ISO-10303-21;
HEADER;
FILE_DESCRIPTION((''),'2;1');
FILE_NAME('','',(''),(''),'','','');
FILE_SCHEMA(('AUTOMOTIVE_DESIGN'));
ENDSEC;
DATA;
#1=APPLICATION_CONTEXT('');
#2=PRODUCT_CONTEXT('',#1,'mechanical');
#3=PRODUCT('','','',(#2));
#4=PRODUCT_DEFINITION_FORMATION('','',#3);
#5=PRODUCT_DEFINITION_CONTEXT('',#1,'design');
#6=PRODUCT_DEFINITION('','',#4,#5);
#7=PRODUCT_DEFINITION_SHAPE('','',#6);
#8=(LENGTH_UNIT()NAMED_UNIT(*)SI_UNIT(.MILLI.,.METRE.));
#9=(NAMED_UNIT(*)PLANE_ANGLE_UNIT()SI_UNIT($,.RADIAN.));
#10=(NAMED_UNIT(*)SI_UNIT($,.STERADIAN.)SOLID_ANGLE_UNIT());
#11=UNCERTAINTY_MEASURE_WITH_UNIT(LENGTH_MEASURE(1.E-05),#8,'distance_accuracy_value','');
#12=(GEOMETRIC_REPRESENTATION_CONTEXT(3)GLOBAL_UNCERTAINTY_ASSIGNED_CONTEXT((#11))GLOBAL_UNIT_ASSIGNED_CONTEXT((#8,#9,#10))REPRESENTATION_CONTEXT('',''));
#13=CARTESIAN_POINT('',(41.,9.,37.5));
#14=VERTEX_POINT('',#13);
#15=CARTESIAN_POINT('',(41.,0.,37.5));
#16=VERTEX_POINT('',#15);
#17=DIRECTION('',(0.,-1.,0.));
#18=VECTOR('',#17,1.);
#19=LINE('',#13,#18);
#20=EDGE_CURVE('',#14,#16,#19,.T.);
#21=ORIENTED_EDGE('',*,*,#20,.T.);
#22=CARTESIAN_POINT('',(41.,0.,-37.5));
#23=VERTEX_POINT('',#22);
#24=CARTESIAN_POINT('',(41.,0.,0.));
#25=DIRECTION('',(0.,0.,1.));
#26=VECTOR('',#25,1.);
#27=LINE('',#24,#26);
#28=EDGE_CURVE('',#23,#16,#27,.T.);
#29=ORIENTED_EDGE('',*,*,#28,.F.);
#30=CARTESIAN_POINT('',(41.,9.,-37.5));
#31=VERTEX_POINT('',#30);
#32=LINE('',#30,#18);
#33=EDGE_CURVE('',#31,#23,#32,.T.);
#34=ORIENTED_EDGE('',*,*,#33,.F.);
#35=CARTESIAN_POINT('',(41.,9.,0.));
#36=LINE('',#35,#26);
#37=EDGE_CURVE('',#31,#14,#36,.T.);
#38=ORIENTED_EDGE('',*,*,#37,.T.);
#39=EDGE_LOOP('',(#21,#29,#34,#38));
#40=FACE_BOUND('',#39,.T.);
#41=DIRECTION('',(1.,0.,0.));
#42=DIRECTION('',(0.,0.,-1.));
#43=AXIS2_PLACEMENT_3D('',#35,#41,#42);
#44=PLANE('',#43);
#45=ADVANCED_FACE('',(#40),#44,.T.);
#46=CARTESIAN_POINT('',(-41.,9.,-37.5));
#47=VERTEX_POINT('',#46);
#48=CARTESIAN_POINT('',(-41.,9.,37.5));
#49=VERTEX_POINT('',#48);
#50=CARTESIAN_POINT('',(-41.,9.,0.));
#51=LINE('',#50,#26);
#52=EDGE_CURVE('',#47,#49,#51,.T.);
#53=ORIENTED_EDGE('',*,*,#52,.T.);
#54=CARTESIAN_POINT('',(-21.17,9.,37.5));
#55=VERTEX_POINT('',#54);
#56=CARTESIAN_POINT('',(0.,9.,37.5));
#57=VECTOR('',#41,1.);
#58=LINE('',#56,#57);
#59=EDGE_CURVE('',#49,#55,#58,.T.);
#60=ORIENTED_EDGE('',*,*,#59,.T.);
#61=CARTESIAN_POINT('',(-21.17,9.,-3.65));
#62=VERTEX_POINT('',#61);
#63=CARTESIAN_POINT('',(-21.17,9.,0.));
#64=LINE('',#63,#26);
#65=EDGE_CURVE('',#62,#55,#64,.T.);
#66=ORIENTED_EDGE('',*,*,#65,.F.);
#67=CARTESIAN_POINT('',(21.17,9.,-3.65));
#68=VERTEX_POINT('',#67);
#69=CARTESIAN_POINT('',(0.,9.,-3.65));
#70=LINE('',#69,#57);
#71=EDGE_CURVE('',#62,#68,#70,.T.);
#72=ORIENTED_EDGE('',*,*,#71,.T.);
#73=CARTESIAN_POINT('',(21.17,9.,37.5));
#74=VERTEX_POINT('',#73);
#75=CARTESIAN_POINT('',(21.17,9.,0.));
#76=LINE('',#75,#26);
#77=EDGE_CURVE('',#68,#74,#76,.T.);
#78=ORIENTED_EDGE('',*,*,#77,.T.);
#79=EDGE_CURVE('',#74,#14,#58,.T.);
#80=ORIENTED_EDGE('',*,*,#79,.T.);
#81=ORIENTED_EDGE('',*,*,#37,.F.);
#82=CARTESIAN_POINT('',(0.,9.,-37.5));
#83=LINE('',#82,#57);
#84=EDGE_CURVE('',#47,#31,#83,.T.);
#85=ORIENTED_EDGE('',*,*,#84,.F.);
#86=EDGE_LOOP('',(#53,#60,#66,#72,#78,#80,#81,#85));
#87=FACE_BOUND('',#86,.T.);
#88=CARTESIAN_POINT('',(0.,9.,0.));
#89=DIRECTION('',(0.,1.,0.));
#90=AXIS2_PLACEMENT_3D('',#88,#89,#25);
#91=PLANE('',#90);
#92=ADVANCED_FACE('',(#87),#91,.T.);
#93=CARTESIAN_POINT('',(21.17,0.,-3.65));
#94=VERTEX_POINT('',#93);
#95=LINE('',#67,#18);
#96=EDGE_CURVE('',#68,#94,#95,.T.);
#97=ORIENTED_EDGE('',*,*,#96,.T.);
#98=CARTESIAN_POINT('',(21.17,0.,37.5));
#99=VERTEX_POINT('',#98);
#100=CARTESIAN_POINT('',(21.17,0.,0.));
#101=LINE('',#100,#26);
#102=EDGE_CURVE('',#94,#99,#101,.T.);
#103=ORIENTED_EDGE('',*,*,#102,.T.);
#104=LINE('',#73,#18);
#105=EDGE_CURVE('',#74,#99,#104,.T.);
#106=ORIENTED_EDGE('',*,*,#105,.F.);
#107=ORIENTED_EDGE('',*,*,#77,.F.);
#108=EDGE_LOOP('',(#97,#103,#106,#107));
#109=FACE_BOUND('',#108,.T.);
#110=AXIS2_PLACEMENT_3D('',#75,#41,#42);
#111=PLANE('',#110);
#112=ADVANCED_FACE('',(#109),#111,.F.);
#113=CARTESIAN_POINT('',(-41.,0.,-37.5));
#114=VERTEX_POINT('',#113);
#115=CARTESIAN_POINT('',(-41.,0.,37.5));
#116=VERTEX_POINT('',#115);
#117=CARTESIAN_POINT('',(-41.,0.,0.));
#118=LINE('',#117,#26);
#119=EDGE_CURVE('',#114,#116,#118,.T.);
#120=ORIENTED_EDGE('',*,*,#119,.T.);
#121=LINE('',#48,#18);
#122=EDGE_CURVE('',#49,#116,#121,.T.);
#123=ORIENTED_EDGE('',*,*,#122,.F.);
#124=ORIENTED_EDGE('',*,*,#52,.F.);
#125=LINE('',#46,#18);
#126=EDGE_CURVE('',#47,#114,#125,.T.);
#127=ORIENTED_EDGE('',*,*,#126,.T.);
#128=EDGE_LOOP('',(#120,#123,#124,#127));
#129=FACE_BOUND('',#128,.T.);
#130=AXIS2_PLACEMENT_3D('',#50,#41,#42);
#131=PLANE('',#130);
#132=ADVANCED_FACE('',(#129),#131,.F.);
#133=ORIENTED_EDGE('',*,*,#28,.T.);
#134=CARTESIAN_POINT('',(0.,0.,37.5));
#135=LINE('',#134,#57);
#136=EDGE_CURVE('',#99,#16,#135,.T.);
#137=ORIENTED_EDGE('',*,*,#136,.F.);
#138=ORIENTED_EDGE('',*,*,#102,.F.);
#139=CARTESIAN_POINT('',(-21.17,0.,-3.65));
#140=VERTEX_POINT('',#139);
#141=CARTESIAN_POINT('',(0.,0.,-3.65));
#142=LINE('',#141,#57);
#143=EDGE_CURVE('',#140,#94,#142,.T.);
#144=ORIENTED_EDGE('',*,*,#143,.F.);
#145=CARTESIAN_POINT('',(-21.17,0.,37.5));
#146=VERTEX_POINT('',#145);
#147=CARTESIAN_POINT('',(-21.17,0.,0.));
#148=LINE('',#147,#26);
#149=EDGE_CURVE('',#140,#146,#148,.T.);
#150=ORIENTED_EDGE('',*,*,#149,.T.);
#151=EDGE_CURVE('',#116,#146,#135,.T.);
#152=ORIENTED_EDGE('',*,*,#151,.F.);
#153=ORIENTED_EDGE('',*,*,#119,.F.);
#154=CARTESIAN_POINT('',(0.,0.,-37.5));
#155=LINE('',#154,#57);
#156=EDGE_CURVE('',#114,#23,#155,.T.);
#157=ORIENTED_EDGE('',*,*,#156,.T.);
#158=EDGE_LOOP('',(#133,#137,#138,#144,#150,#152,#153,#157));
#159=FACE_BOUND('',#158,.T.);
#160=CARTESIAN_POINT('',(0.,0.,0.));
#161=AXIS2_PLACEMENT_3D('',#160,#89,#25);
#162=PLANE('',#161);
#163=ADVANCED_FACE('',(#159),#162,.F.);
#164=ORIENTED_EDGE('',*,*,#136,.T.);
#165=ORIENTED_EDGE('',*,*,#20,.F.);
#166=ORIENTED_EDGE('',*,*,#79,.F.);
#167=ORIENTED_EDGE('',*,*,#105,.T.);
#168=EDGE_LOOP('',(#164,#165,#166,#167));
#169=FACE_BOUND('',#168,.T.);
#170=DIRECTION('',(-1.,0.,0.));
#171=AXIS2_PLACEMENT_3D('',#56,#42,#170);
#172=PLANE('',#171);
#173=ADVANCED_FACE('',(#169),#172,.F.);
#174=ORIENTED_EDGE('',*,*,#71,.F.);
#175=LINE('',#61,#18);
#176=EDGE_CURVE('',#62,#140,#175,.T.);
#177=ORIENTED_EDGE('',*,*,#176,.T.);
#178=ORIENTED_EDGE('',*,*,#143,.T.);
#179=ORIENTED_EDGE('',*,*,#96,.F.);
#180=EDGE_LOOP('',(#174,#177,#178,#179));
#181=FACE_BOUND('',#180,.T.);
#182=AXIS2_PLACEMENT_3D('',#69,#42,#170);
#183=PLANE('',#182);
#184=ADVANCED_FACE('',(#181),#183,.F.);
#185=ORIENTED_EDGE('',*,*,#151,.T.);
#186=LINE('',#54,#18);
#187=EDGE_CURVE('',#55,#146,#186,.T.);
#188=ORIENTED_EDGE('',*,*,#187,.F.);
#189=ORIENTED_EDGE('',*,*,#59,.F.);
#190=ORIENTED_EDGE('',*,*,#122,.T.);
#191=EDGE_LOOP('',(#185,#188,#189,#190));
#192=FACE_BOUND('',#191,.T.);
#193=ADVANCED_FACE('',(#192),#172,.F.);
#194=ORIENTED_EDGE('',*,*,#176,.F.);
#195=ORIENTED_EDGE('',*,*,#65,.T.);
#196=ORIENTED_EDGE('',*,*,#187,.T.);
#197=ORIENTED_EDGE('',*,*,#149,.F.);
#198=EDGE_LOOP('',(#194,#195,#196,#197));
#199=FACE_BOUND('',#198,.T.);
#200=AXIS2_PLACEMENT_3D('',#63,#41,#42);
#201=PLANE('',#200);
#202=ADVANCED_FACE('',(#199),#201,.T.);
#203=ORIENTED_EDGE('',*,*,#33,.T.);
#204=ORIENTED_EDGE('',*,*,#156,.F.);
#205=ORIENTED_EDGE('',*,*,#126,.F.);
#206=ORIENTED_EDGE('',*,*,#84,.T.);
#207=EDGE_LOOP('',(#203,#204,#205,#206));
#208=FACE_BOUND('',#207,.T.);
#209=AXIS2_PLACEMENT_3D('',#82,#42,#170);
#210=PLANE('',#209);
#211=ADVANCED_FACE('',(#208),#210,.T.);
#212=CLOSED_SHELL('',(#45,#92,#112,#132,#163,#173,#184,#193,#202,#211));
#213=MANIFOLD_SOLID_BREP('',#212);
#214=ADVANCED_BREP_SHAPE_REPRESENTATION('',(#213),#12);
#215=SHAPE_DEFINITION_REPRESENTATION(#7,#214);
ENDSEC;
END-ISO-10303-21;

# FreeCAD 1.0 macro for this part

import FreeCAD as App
import Part
import Sketcher

doc = App.newDocument("Part")
body = doc.addObject("PartDesign::Body", "Body")

# Sketch on XZ plane
sketch1 = body.newObject("Sketcher::SketchObject", "Sketch")
sketch1.AttachmentSupport = (doc.getObject("XZ_Plane"), [""])
sketch1.MapMode = "FlatFace"
sketch1.addGeometry([
    Part.LineSegment(App.Vector(-41, 37.5, 0), App.Vector(-21.17, 37.5, 0)),  # 0
    Part.LineSegment(App.Vector(-21.17, 37.5, 0), App.Vector(-21.17, -3.65, 0)),  # 1
    Part.LineSegment(App.Vector(-21.17, -3.65, 0), App.Vector(21.17, -3.65, 0)),  # 2
    Part.LineSegment(App.Vector(21.17, -3.65, 0), App.Vector(21.17, 37.5, 0)),  # 3
    Part.LineSegment(App.Vector(21.17, 37.5, 0), App.Vector(41, 37.5, 0)),  # 4
    Part.LineSegment(App.Vector(41, 37.5, 0), App.Vector(41, -37.5, 0)),  # 5
    Part.LineSegment(App.Vector(41, -37.5, 0), App.Vector(-41, -37.5, 0)),  # 6
    Part.LineSegment(App.Vector(-41, -37.5, 0), App.Vector(-41, 37.5, 0)),  # 7
], False)
sketch1.addConstraint([
    Sketcher.Constraint("Coincident", 0, 2, 1, 1),
    Sketcher.Constraint("Coincident", 1, 2, 2, 1),
    Sketcher.Constraint("Coincident", 2, 2, 3, 1),
    Sketcher.Constraint("Coincident", 3, 2, 4, 1),
    Sketcher.Constraint("Coincident", 4, 2, 5, 1),
    Sketcher.Constraint("Coincident", 5, 2, 6, 1),
    Sketcher.Constraint("Coincident", 6, 2, 7, 1),
    Sketcher.Constraint("Coincident", 7, 2, 0, 1),
    Sketcher.Constraint("Horizontal", 0),
    Sketcher.Constraint("Vertical", 1),
    Sketcher.Constraint("Horizontal", 2),
    Sketcher.Constraint("Vertical", 3),
    Sketcher.Constraint("Horizontal", 4),
    Sketcher.Constraint("Vertical", 5),
    Sketcher.Constraint("Horizontal", 6),
    Sketcher.Constraint("Vertical", 7),
    Sketcher.Constraint("Symmetric", 4, 2, 6, 2, -1, 1),
    Sketcher.Constraint("Symmetric", 0, 2, 3, 2, -2),
    Sketcher.Constraint("DistanceX", 6, 2, 6, 1, 82.0),
    Sketcher.Constraint("DistanceY", 5, 2, 5, 1, 75.0),
    Sketcher.Constraint("DistanceX", 0, 1, 0, 2, 19.83),
    Sketcher.Constraint("DistanceY", 1, 2, 1, 1, 41.15),
])
pad1 = body.newObject("PartDesign::Pad", "Pad")
pad1.Profile = sketch1
pad1.Length = 9
pad1.Reversed = True

doc.recompute()
